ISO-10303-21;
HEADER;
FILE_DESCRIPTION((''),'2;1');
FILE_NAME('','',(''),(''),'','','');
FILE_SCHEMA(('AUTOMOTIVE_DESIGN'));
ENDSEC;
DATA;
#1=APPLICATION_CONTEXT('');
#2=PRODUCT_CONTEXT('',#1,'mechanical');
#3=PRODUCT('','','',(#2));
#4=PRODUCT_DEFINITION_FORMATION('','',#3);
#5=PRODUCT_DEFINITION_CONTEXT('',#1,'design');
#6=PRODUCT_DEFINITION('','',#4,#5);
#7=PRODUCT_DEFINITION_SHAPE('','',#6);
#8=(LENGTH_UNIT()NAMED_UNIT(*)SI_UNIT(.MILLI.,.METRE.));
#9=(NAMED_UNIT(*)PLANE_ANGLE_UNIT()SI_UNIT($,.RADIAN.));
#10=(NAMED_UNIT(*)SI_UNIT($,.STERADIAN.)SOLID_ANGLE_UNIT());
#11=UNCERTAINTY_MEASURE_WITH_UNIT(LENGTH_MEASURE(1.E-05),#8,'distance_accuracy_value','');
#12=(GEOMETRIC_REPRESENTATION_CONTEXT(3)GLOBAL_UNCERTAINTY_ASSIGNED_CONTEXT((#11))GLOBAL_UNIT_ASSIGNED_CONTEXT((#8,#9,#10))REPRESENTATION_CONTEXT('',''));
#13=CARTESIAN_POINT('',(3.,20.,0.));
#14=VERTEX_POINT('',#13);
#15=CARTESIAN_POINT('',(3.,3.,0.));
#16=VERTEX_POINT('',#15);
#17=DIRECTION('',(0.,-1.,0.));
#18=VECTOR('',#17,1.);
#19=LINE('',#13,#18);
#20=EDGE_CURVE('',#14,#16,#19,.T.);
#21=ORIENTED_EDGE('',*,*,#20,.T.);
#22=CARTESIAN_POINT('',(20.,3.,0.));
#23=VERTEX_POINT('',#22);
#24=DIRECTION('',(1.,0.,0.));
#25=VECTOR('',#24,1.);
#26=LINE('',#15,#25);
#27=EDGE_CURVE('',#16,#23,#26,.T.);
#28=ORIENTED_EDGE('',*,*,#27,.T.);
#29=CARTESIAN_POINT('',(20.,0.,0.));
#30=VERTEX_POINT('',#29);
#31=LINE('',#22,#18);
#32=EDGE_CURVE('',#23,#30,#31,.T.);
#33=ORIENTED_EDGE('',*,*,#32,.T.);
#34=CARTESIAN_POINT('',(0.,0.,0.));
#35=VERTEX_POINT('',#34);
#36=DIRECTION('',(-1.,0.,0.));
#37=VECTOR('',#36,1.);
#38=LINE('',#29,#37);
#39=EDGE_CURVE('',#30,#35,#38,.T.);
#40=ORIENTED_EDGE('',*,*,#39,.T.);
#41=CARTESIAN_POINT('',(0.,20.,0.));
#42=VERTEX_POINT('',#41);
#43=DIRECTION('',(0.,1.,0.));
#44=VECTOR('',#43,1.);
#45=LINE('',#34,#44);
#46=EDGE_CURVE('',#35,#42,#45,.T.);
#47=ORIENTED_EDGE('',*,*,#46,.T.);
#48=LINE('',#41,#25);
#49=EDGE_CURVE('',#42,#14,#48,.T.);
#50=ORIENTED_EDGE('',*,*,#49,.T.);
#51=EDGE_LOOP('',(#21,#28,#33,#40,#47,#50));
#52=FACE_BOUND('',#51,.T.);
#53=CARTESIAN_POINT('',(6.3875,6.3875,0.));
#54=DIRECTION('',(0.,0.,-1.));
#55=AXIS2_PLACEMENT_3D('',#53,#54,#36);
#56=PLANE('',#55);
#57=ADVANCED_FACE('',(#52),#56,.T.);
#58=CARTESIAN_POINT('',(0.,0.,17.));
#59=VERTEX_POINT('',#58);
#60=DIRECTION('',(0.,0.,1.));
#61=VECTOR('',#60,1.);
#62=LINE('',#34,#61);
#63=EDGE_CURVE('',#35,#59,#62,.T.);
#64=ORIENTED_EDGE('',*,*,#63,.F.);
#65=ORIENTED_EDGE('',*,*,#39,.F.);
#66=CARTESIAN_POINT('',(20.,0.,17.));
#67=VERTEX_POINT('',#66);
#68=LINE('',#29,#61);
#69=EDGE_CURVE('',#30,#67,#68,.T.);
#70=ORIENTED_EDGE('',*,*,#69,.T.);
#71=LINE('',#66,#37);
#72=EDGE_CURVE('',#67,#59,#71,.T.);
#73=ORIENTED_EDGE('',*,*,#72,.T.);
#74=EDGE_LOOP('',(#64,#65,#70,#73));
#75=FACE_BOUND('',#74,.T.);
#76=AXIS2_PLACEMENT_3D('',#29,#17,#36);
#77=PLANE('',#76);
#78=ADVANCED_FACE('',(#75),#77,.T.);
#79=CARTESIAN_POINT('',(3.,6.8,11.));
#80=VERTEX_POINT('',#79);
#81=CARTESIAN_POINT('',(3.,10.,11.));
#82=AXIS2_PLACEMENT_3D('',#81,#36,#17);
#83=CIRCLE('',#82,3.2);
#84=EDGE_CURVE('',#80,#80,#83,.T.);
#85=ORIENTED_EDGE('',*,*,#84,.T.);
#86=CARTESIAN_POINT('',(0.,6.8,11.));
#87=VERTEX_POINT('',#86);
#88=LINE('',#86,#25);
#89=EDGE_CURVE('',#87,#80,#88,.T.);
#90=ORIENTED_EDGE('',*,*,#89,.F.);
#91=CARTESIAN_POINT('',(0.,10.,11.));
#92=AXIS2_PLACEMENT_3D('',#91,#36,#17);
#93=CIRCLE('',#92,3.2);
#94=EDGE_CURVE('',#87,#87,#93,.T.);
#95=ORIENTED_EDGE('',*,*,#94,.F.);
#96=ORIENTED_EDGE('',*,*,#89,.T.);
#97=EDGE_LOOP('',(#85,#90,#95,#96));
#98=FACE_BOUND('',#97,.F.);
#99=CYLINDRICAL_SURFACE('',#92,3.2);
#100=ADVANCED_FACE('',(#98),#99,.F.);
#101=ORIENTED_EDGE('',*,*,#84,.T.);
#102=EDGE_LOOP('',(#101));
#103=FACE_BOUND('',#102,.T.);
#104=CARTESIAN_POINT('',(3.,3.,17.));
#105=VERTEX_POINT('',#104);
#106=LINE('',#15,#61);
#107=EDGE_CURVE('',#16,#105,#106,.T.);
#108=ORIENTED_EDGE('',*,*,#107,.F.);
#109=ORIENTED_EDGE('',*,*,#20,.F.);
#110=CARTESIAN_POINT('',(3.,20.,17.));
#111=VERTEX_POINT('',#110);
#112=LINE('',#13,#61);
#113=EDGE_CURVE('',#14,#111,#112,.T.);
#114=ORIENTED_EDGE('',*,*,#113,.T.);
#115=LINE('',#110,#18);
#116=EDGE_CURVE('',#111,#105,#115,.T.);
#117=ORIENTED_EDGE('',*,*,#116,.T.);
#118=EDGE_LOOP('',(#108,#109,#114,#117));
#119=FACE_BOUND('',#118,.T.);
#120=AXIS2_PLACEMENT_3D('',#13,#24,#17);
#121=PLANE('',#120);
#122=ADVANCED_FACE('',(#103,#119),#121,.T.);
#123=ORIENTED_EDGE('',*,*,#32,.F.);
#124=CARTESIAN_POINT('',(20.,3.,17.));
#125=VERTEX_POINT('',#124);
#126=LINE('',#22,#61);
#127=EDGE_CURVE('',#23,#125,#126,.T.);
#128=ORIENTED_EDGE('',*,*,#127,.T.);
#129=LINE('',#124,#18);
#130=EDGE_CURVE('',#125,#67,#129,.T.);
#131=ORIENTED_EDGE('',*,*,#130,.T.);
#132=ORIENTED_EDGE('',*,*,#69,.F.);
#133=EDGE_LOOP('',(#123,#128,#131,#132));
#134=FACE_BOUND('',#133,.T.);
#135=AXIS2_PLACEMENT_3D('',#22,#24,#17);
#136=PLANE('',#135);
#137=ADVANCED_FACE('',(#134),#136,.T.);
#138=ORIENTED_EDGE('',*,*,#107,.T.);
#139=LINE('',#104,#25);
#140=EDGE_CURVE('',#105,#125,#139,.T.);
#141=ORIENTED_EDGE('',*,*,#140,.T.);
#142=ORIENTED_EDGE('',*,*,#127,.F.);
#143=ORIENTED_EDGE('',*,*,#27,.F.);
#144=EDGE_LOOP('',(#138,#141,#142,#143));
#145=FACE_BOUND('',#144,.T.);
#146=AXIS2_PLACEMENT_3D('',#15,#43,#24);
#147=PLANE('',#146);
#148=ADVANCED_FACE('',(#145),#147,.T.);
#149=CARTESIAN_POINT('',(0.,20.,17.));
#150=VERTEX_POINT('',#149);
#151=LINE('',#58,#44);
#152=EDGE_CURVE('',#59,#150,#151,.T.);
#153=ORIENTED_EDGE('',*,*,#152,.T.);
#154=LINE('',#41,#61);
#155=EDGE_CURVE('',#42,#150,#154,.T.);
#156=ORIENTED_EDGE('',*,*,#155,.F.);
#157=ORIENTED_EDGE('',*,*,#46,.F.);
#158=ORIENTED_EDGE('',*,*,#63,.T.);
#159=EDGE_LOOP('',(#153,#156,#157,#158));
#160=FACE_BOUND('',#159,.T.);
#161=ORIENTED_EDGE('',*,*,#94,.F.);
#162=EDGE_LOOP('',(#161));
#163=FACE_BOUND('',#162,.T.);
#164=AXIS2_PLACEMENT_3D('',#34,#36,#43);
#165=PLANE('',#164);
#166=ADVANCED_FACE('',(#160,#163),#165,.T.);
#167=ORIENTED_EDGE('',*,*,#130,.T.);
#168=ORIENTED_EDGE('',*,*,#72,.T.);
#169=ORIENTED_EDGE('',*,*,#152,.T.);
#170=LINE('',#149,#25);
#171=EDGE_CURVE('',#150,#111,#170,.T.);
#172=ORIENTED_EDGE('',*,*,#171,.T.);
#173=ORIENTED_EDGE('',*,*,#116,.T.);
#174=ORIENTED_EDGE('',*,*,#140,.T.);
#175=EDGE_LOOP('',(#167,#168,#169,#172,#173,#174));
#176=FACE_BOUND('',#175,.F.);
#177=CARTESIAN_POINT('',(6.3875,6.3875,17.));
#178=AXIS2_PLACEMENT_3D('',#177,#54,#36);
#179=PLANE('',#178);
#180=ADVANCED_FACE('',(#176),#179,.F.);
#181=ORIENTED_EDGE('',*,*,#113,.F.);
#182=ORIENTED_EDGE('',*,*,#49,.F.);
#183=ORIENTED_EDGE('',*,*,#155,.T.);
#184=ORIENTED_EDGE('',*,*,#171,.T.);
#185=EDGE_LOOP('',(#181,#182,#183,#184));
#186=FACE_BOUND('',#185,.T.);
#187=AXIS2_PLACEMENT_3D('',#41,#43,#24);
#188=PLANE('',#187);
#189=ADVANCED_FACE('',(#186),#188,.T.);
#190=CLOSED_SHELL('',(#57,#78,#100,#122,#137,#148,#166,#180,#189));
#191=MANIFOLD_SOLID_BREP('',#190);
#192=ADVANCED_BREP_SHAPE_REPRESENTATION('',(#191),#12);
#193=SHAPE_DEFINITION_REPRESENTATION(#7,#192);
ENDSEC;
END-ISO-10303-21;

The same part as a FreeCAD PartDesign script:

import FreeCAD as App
import Part
import Sketcher
from FreeCAD import Vector
Q = App.Units.Quantity


def add_polygon(sketch, points):
    """Adds a closed chain of lines whose ends are joined by coincident constraints."""
    first, n = sketch.GeometryCount, len(points)
    for a, b in zip(points, points[1:] + points[:1]):
        sketch.addGeometry(Part.LineSegment(App.Vector(*a, 0), App.Vector(*b, 0)), False)
    for i in range(n):
        sketch.addConstraint(Sketcher.Constraint("Coincident", first + i, 2, first + (i + 1) % n, 1))

doc = App.newDocument("Part")
body = doc.addObject("PartDesign::Body", "Body")

sketch1 = doc.addObject("Sketcher::SketchObject", "Sketch")
body.addObject(sketch1)
sketch1.AttachmentSupport = (doc.XY_Plane, [""])
sketch1.MapMode = "FlatFace"
add_polygon(sketch1, [(0, 20), (0, 0), (20, 0), (20, 3), (3, 3), (3, 20)])
sketch1.addConstraint(Sketcher.Constraint("Vertical", 0))
sketch1.addConstraint(Sketcher.Constraint("Horizontal", 1))
sketch1.addConstraint(Sketcher.Constraint("Vertical", 2))
sketch1.addConstraint(Sketcher.Constraint("Horizontal", 3))
sketch1.addConstraint(Sketcher.Constraint("Vertical", 4))
sketch1.addConstraint(Sketcher.Constraint("Horizontal", 5))
sketch1.addConstraint(Sketcher.Constraint("Coincident", 0, 2, -1, 1))
sketch1.addConstraint(Sketcher.Constraint("Equal", 1, 0))
sketch1.addConstraint(Sketcher.Constraint("Equal", 5, 2))
sketch1.addConstraint(Sketcher.Constraint("DistanceX", 1, 1, 1, 2, Q("20 mm")))
sketch1.addConstraint(Sketcher.Constraint("DistanceX", 3, 2, 3, 1, Q("17 mm")))
pad1 = doc.addObject("PartDesign::Pad", "Pad")
body.addObject(pad1)
pad1.Profile = sketch1
pad1.Length = 17

sketch2 = doc.addObject("Sketcher::SketchObject", "Sketch001")
body.addObject(sketch2)
sketch2.AttachmentSupport = (doc.YZ_Plane, [""])
sketch2.MapMode = "FlatFace"
sketch2.addGeometry(Part.Circle(Vector(10, 11, 0), Vector(0, 0, 1), 3.2), False)
sketch2.addConstraint(Sketcher.Constraint("Diameter", 0, Q("6.4 mm")))
sketch2.addConstraint(Sketcher.Constraint("DistanceX", -1, 1, 0, 3, Q("10 mm")))
sketch2.addConstraint(Sketcher.Constraint("DistanceY", -1, 1, 0, 3, Q("11 mm")))
pocket1 = doc.addObject("PartDesign::Pocket", "Pocket")
body.addObject(pocket1)
pocket1.Profile = sketch2
pocket1.Length = 5
pocket1.Reversed = True

doc.recompute()
